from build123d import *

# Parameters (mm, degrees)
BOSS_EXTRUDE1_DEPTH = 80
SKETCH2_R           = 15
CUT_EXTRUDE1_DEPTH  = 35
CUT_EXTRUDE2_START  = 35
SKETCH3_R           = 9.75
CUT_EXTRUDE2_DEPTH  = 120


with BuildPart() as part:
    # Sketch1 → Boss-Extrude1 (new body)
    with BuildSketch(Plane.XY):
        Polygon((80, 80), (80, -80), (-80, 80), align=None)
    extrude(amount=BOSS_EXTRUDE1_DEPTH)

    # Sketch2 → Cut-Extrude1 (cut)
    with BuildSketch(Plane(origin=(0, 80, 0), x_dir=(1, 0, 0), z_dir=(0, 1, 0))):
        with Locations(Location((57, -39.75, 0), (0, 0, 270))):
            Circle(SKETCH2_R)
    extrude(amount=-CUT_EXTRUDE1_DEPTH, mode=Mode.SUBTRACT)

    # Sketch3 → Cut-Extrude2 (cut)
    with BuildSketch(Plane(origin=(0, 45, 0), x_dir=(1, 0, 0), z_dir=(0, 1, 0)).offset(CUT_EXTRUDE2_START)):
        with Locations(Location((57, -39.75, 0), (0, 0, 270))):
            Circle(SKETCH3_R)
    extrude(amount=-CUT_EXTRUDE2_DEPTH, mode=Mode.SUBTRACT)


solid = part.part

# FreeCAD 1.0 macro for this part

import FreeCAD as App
import Part
import Sketcher
from FreeCAD import Vector
Q = App.Units.Quantity


def add_polygon(sketch, points):
    """Adds a closed chain of lines whose ends are joined by coincident constraints."""
    first, n = sketch.GeometryCount, len(points)
    for a, b in zip(points, points[1:] + points[:1]):
        sketch.addGeometry(Part.LineSegment(App.Vector(*a, 0), App.Vector(*b, 0)), False)
    for i in range(n):
        sketch.addConstraint(Sketcher.Constraint("Coincident", first + i, 2, first + (i + 1) % n, 1))

doc = App.newDocument("Part")
params = doc.addObject("Spreadsheet::Sheet", "Params")
for row, (alias, value) in enumerate([
    ("sketch1_width", "160 mm"),
    ("pad1_length", "80 mm"),
    ("sketch2_diameter", "30 mm"),
    ("pocket1_length", "35 mm"),
    ("sketch3_diameter", "19.5 mm"),
    ("pocket2_length", "120 mm"),
], start=1):
    params.set(f"A{row}", alias)
    params.set(f"B{row}", "=" + value)
    params.setAlias(f"B{row}", alias)

body = doc.addObject("PartDesign::Body", "Body")

sketch1 = body.newObject("Sketcher::SketchObject", "Sketch")
sketch1.AttachmentSupport = (doc.getObject("XY_Plane"), [""])
sketch1.MapMode = "FlatFace"
add_polygon(sketch1, [(80, -80), (80, 80), (-80, 80)])
sketch1.addConstraint([
    Sketcher.Constraint("Vertical", 0),
    Sketcher.Constraint("Horizontal", 1),
    Sketcher.Constraint("Symmetric", 1, 2, 2, 2, -1, 1),
    Sketcher.Constraint("Equal", 1, 0),
    Sketcher.Constraint("DistanceX", 1, 2, 1, 1, Q("160 mm")),
])
sketch1.setExpression("Constraints[7]", "Params.sketch1_width")
pad1 = body.newObject("PartDesign::Pad", "Pad")
pad1.Profile = sketch1
pad1.setExpression("Length", "Params.pad1_length")

sketch2 = body.newObject("Sketcher::SketchObject", "Sketch001")
sketch2.AttachmentSupport = (doc.getObject("XZ_Plane"), [""])
sketch2.MapMode = "FlatFace"
sketch2.AttachmentOffset = App.Placement(Vector(0, 0, -80), App.Rotation())
sketch2.addGeometry(Part.Circle(Vector(57, 39.75, 0), Vector(0, 0, 1), 15), False)
sketch2.addConstraint([
    Sketcher.Constraint("Diameter", 0, Q("30 mm")),
    Sketcher.Constraint("DistanceX", -1, 1, 0, 3, Q("57 mm")),
    Sketcher.Constraint("DistanceY", -1, 1, 0, 3, Q("39.75 mm")),
])
sketch2.setExpression("Constraints[0]", "Params.sketch2_diameter")
pocket1 = body.newObject("PartDesign::Pocket", "Pocket")
pocket1.Profile = sketch2
pocket1.setExpression("Length", "Params.pocket1_length")
pocket1.Reversed = True

sketch3 = body.newObject("Sketcher::SketchObject", "Sketch002")
sketch3.AttachmentSupport = (doc.getObject("XZ_Plane"), [""])
sketch3.MapMode = "FlatFace"
sketch3.AttachmentOffset = App.Placement(Vector(0, 0, -80), App.Rotation())
sketch3.addGeometry(Part.Circle(Vector(57, 39.75, 0), Vector(0, 0, 1), 9.75), False)
sketch3.addConstraint([
    Sketcher.Constraint("Diameter", 0, Q("19.5 mm")),
    Sketcher.Constraint("DistanceX", -1, 1, 0, 3, Q("57 mm")),
    Sketcher.Constraint("DistanceY", -1, 1, 0, 3, Q("39.75 mm")),
])
sketch3.setExpression("Constraints[0]", "Params.sketch3_diameter")
pocket2 = body.newObject("PartDesign::Pocket", "Pocket001")
pocket2.Profile = sketch3
pocket2.setExpression("Length", "Params.pocket2_length")
pocket2.Reversed = True

doc.recompute()
